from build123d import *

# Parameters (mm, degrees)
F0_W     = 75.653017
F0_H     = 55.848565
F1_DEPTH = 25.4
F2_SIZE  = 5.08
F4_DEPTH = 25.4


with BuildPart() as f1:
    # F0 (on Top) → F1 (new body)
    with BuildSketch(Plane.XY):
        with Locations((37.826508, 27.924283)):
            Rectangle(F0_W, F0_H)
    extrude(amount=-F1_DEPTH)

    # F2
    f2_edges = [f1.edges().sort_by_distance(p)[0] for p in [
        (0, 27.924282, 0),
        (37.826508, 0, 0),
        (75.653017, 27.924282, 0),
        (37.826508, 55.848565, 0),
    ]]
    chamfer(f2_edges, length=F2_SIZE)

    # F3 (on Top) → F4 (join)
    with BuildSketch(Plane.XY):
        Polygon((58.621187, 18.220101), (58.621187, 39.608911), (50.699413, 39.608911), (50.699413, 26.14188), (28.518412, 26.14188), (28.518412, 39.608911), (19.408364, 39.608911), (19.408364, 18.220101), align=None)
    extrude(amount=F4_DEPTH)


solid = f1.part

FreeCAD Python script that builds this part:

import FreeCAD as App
import Part
import Sketcher
Q = App.Units.Quantity


def edges_at(feature, points):
    """Names of the edges that pass closest to the given points."""
    edges = feature.Shape.Edges
    near = lambda p: min(range(len(edges)), key=lambda i: edges[i].distToShape(Part.Vertex(*p))[0])
    return sorted({f"Edge{near(p) + 1}" for p in points})

doc = App.newDocument("Part")
params = doc.addObject("Spreadsheet::Sheet", "Params")
for row, (alias, value) in enumerate([
    ("pad1_length", "1 in"),
    ("chamfer_size", "0.2 in"),
    ("pad2_length", "1 in"),
], start=1):
    params.set(f"A{row}", alias)
    params.set(f"B{row}", "=" + value)
    params.setAlias(f"B{row}", alias)

body = doc.addObject("PartDesign::Body", "Body")

sketch1 = body.newObject("Sketcher::SketchObject", "Sketch")
sketch1.AttachmentSupport = (doc.getObject("XY_Plane"), [""])
sketch1.MapMode = "FlatFace"
sketch1.addGeometry(Part.LineSegment(App.Vector(0, 56, 0), App.Vector(0, 0, 0)), False)
sketch1.addGeometry(Part.LineSegment(App.Vector(0, 0, 0), App.Vector(76, 0, 0)), False)
sketch1.addGeometry(Part.LineSegment(App.Vector(76, 0, 0), App.Vector(76, 56, 0)), False)
sketch1.addGeometry(Part.LineSegment(App.Vector(76, 56, 0), App.Vector(0, 56, 0)), False)
sketch1.addConstraint(Sketcher.Constraint("Coincident", 0, 2, 1, 1))
sketch1.addConstraint(Sketcher.Constraint("Coincident", 1, 2, 2, 1))
sketch1.addConstraint(Sketcher.Constraint("Coincident", 2, 2, 3, 1))
sketch1.addConstraint(Sketcher.Constraint("Coincident", 3, 2, 0, 1))
sketch1.addConstraint(Sketcher.Constraint("Vertical", 0))
sketch1.addConstraint(Sketcher.Constraint("Horizontal", 1))
sketch1.addConstraint(Sketcher.Constraint("Vertical", 2))
sketch1.addConstraint(Sketcher.Constraint("Horizontal", 3))
sketch1.addConstraint(Sketcher.Constraint("Coincident", 0, 2, -1, 1))
sketch1.addConstraint(Sketcher.Constraint("DistanceX", 1, 1, 1, 2, Q("75.653017 mm")))
sketch1.addConstraint(Sketcher.Constraint("DistanceY", 0, 2, 0, 1, Q("55.848565 mm")))
pad1 = body.newObject("PartDesign::Pad", "Pad")
pad1.Profile = sketch1
pad1.setExpression("Length", "Params.pad1_length")
pad1.Reversed = True
doc.recompute()

chamfer = body.newObject("PartDesign::Chamfer", "Chamfer")
chamfer.Base = (pad1, edges_at(pad1, [
    (0, 27.924, 0),
    (37.827, 0, 0),
    (75.653, 27.924, 0),
    (37.827, 55.849, 0),
]))
chamfer.setExpression("Size", "Params.chamfer_size")

sketch2 = body.newObject("Sketcher::SketchObject", "Sketch001")
sketch2.AttachmentSupport = (doc.getObject("XY_Plane"), [""])
sketch2.MapMode = "FlatFace"
sketch2.addGeometry(Part.LineSegment(App.Vector(59, 18, 0), App.Vector(59, 40, 0)), False)
sketch2.addGeometry(Part.LineSegment(App.Vector(59, 40, 0), App.Vector(51, 40, 0)), False)
sketch2.addGeometry(Part.LineSegment(App.Vector(51, 40, 0), App.Vector(51, 26, 0)), False)
sketch2.addGeometry(Part.LineSegment(App.Vector(51, 26, 0), App.Vector(29, 26, 0)), False)
sketch2.addGeometry(Part.LineSegment(App.Vector(29, 26, 0), App.Vector(29, 40, 0)), False)
sketch2.addGeometry(Part.LineSegment(App.Vector(29, 40, 0), App.Vector(19, 40, 0)), False)
sketch2.addGeometry(Part.LineSegment(App.Vector(19, 40, 0), App.Vector(19, 18, 0)), False)
sketch2.addGeometry(Part.LineSegment(App.Vector(19, 18, 0), App.Vector(59, 18, 0)), False)
sketch2.addConstraint(Sketcher.Constraint("Coincident", 0, 2, 1, 1))
sketch2.addConstraint(Sketcher.Constraint("Coincident", 1, 2, 2, 1))
sketch2.addConstraint(Sketcher.Constraint("Coincident", 2, 2, 3, 1))
sketch2.addConstraint(Sketcher.Constraint("Coincident", 3, 2, 4, 1))
sketch2.addConstraint(Sketcher.Constraint("Coincident", 4, 2, 5, 1))
sketch2.addConstraint(Sketcher.Constraint("Coincident", 5, 2, 6, 1))
sketch2.addConstraint(Sketcher.Constraint("Coincident", 6, 2, 7, 1))
sketch2.addConstraint(Sketcher.Constraint("Coincident", 7, 2, 0, 1))
sketch2.addConstraint(Sketcher.Constraint("Vertical", 0))
sketch2.addConstraint(Sketcher.Constraint("Horizontal", 1))
sketch2.addConstraint(Sketcher.Constraint("Vertical", 2))
sketch2.addConstraint(Sketcher.Constraint("Horizontal", 3))
sketch2.addConstraint(Sketcher.Constraint("Vertical", 4))
sketch2.addConstraint(Sketcher.Constraint("Horizontal", 5))
sketch2.addConstraint(Sketcher.Constraint("Vertical", 6))
sketch2.addConstraint(Sketcher.Constraint("Horizontal", 7))
sketch2.addConstraint(Sketcher.Constraint("Horizontal", 1, 2, 4, 2))
sketch2.addConstraint(Sketcher.Constraint("DistanceX", 3, 2, 3, 1, Q("22.181001 mm")))
sketch2.addConstraint(Sketcher.Constraint("DistanceX", 5, 2, 5, 1, Q("9.110048 mm")))
sketch2.addConstraint(Sketcher.Constraint("DistanceY", 0, 1, 0, 2, Q("21.38881 mm")))
sketch2.addConstraint(Sketcher.Constraint("DistanceY", 2, 2, 2, 1, Q("13.467031 mm")))
sketch2.addConstraint(Sketcher.Constraint("DistanceY", -1, 1, 6, 2, Q("18.220101 mm")))
sketch2.addConstraint(Sketcher.Constraint("DistanceX", 1, 2, 1, 1, Q("7.921774 mm")))
sketch2.addConstraint(Sketcher.Constraint("DistanceX", -1, 1, 0, 2, Q("58.621187 mm")))
pad2 = body.newObject("PartDesign::Pad", "Pad001")
pad2.Profile = sketch2
pad2.setExpression("Length", "Params.pad2_length")

doc.recompute()
